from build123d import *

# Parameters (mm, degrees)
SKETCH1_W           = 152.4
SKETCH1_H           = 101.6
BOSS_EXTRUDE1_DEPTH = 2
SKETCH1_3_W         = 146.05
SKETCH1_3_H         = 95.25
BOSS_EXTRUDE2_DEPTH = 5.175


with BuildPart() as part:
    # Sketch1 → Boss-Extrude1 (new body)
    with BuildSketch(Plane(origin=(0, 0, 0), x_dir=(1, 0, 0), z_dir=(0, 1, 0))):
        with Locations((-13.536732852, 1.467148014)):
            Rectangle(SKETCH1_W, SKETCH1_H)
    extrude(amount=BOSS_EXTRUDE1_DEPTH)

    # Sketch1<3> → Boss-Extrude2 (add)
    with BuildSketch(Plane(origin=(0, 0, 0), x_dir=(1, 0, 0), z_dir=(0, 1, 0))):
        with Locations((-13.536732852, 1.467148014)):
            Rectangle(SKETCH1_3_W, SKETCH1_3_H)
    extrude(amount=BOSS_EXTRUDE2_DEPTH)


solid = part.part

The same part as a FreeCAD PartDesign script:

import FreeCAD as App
import Part
import Sketcher
from FreeCAD import Vector
Q = App.Units.Quantity

doc = App.newDocument("Part")
body = doc.addObject("PartDesign::Body", "Body")

# Sketch on XZ plane
sketch1 = body.newObject("Sketcher::SketchObject", "Sketch")
sketch1.AttachmentSupport = (doc.getObject("XZ_Plane"), [""])
sketch1.MapMode = "FlatFace"
sketch1.addGeometry(Part.LineSegment(Vector(-90, -52, 0), Vector(-90, 49, 0)), False)
sketch1.addGeometry(Part.LineSegment(Vector(-90, 49, 0), Vector(63, 49, 0)), False)
sketch1.addGeometry(Part.LineSegment(Vector(63, 49, 0), Vector(63, -52, 0)), False)
sketch1.addGeometry(Part.LineSegment(Vector(63, -52, 0), Vector(-90, -52, 0)), False)
sketch1.addConstraint(Sketcher.Constraint("Coincident", 0, 2, 1, 1))
sketch1.addConstraint(Sketcher.Constraint("Coincident", 1, 2, 2, 1))
sketch1.addConstraint(Sketcher.Constraint("Coincident", 2, 2, 3, 1))
sketch1.addConstraint(Sketcher.Constraint("Coincident", 3, 2, 0, 1))
sketch1.addConstraint(Sketcher.Constraint("Vertical", 0))
sketch1.addConstraint(Sketcher.Constraint("Horizontal", 1))
sketch1.addConstraint(Sketcher.Constraint("Vertical", 2))
sketch1.addConstraint(Sketcher.Constraint("Horizontal", 3))
sketch1.addConstraint(Sketcher.Constraint("DistanceX", 1, 1, 1, 2, Q("6 in")))
sketch1.addConstraint(Sketcher.Constraint("DistanceY", 0, 1, 0, 2, Q("4 in")))
sketch1.addConstraint(Sketcher.Constraint("DistanceY", -1, 1, 0, 2, 49.332852))
sketch1.addConstraint(Sketcher.Constraint("DistanceX", 0, 2, -1, 1, 89.736733))
pad1 = body.newObject("PartDesign::Pad", "Pad")
pad1.Profile = sketch1
pad1.Length = 2
pad1.Reversed = True

# Sketch on XZ plane
sketch2 = body.newObject("Sketcher::SketchObject", "Sketch001")
sketch2.AttachmentSupport = (doc.getObject("XZ_Plane"), [""])
sketch2.MapMode = "FlatFace"
sketch2.addGeometry(Part.LineSegment(Vector(-87, -49, 0), Vector(-87, 46, 0)), False)
sketch2.addGeometry(Part.LineSegment(Vector(-87, 46, 0), Vector(59, 46, 0)), False)
sketch2.addGeometry(Part.LineSegment(Vector(59, 46, 0), Vector(59, -49, 0)), False)
sketch2.addGeometry(Part.LineSegment(Vector(59, -49, 0), Vector(-87, -49, 0)), False)
sketch2.addConstraint(Sketcher.Constraint("Coincident", 0, 2, 1, 1))
sketch2.addConstraint(Sketcher.Constraint("Coincident", 1, 2, 2, 1))
sketch2.addConstraint(Sketcher.Constraint("Coincident", 2, 2, 3, 1))
sketch2.addConstraint(Sketcher.Constraint("Coincident", 3, 2, 0, 1))
sketch2.addConstraint(Sketcher.Constraint("Vertical", 0))
sketch2.addConstraint(Sketcher.Constraint("Horizontal", 1))
sketch2.addConstraint(Sketcher.Constraint("Vertical", 2))
sketch2.addConstraint(Sketcher.Constraint("Horizontal", 3))
sketch2.addConstraint(Sketcher.Constraint("DistanceX", 1, 1, 1, 2, Q("5.75 in")))
sketch2.addConstraint(Sketcher.Constraint("DistanceY", 0, 1, 0, 2, Q("3.75 in")))
sketch2.addConstraint(Sketcher.Constraint("DistanceY", -1, 1, 0, 2, 46.157852))
sketch2.addConstraint(Sketcher.Constraint("DistanceX", 0, 2, -1, 1, 86.561733))
pad2 = body.newObject("PartDesign::Pad", "Pad001")
pad2.Profile = sketch2
pad2.Length = 5.175
pad2.Reversed = True

doc.recompute()
